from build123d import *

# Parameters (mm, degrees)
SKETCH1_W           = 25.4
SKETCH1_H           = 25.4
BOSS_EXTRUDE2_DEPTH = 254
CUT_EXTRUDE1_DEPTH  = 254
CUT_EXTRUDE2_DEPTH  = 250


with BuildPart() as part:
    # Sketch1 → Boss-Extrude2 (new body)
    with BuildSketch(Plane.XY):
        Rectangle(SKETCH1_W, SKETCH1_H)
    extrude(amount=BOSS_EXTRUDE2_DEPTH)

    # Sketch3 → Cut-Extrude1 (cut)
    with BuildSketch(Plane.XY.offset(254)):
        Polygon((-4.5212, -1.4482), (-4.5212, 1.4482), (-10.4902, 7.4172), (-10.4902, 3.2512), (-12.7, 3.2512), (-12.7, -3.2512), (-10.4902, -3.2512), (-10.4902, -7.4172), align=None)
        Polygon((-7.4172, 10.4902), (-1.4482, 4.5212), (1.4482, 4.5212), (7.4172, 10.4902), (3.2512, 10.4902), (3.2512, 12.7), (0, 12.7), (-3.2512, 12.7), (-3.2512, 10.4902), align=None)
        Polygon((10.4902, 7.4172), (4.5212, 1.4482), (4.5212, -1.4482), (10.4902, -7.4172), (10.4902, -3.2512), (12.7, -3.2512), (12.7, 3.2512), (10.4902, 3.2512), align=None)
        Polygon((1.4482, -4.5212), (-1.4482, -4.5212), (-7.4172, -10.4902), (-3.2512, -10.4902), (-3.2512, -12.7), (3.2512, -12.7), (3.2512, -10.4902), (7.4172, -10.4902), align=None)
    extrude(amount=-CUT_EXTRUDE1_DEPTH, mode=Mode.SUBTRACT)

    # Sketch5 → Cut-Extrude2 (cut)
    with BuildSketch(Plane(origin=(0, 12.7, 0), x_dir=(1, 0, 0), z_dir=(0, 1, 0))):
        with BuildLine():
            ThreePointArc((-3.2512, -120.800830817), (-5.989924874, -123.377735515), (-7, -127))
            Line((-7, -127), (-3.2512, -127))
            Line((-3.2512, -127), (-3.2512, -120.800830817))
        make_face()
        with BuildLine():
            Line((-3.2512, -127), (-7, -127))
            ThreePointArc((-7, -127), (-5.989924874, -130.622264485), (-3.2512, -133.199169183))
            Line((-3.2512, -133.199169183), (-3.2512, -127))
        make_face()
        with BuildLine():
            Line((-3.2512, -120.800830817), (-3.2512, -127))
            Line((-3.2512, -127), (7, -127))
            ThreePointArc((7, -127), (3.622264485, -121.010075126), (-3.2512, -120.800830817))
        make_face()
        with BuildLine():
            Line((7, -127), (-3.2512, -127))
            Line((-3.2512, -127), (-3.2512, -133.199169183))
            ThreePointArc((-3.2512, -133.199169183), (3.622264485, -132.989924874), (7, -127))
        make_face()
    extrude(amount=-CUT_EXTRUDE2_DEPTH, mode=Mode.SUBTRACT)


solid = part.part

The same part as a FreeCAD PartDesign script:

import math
import FreeCAD as App
import Part
import Sketcher
Q = App.Units.Quantity

doc = App.newDocument("Part")
body = doc.addObject("PartDesign::Body", "Body")

# Sketch on XY plane
sketch1 = body.newObject("Sketcher::SketchObject", "Sketch")
sketch1.AttachmentSupport = (doc.getObject("XY_Plane"), [""])
sketch1.MapMode = "FlatFace"
sketch1.addGeometry(Part.LineSegment(App.Vector(-12.7, 12.7, 0), App.Vector(-12.7, -12.7, 0)), False)
sketch1.addGeometry(Part.LineSegment(App.Vector(-12.7, -12.7, 0), App.Vector(12.7, -12.7, 0)), False)
sketch1.addGeometry(Part.LineSegment(App.Vector(12.7, -12.7, 0), App.Vector(12.7, 12.7, 0)), False)
sketch1.addGeometry(Part.LineSegment(App.Vector(12.7, 12.7, 0), App.Vector(-12.7, 12.7, 0)), False)
sketch1.addConstraint(Sketcher.Constraint("Coincident", 0, 2, 1, 1))
sketch1.addConstraint(Sketcher.Constraint("Coincident", 1, 2, 2, 1))
sketch1.addConstraint(Sketcher.Constraint("Coincident", 2, 2, 3, 1))
sketch1.addConstraint(Sketcher.Constraint("Coincident", 3, 2, 0, 1))
sketch1.addConstraint(Sketcher.Constraint("Vertical", 0))
sketch1.addConstraint(Sketcher.Constraint("Horizontal", 1))
sketch1.addConstraint(Sketcher.Constraint("Vertical", 2))
sketch1.addConstraint(Sketcher.Constraint("Horizontal", 3))
sketch1.addConstraint(Sketcher.Constraint("Symmetric", 0, 2, 2, 2, -1, 1))
sketch1.addConstraint(Sketcher.Constraint("Equal", 3, 0))
sketch1.addConstraint(Sketcher.Constraint("DistanceX", 1, 1, 1, 2, Q("1 in")))
pad1 = body.newObject("PartDesign::Pad", "Pad")
pad1.Profile = sketch1
pad1.Length = Q("10 in")

# Sketch on XY plane
sketch2 = body.newObject("Sketcher::SketchObject", "Sketch001")
sketch2.AttachmentSupport = (doc.getObject("XY_Plane"), [""])
sketch2.MapMode = "FlatFace"
sketch2.AttachmentOffset = App.Placement(App.Vector(0, 0, 10 * 25.4), App.Rotation())
sketch2.addGeometry(Part.LineSegment(App.Vector(-4.5212, -1.4482, 0), App.Vector(-4.5212, 1.4482, 0)), False)
sketch2.addGeometry(Part.LineSegment(App.Vector(-4.5212, 1.4482, 0), App.Vector(-10.4902, 7.4172, 0)), False)
sketch2.addGeometry(Part.LineSegment(App.Vector(-10.4902, 7.4172, 0), App.Vector(-10.4902, 3.2512, 0)), False)
sketch2.addGeometry(Part.LineSegment(App.Vector(-10.4902, 3.2512, 0), App.Vector(-12.7, 3.2512, 0)), False)
sketch2.addGeometry(Part.LineSegment(App.Vector(-12.7, 3.2512, 0), App.Vector(-12.7, -3.2512, 0)), False)
sketch2.addGeometry(Part.LineSegment(App.Vector(-12.7, -3.2512, 0), App.Vector(-10.4902, -3.2512, 0)), False)
sketch2.addGeometry(Part.LineSegment(App.Vector(-10.4902, -3.2512, 0), App.Vector(-10.4902, -7.4172, 0)), False)
sketch2.addGeometry(Part.LineSegment(App.Vector(-10.4902, -7.4172, 0), App.Vector(-4.5212, -1.4482, 0)), False)
sketch2.addGeometry(Part.LineSegment(App.Vector(-7.4172, 10.4902, 0), App.Vector(-1.4482, 4.5212, 0)), False)
sketch2.addGeometry(Part.LineSegment(App.Vector(-1.4482, 4.5212, 0), App.Vector(1.4482, 4.5212, 0)), False)
sketch2.addGeometry(Part.LineSegment(App.Vector(1.4482, 4.5212, 0), App.Vector(7.4172, 10.4902, 0)), False)
sketch2.addGeometry(Part.LineSegment(App.Vector(7.4172, 10.4902, 0), App.Vector(3.2512, 10.4902, 0)), False)
sketch2.addGeometry(Part.LineSegment(App.Vector(3.2512, 10.4902, 0), App.Vector(3.2512, 12.7, 0)), False)
sketch2.addGeometry(Part.LineSegment(App.Vector(3.2512, 12.7, 0), App.Vector(-3.2512, 12.7, 0)), False)
sketch2.addGeometry(Part.LineSegment(App.Vector(-3.2512, 12.7, 0), App.Vector(-3.2512, 10.4902, 0)), False)
sketch2.addGeometry(Part.LineSegment(App.Vector(-3.2512, 10.4902, 0), App.Vector(-7.4172, 10.4902, 0)), False)
sketch2.addGeometry(Part.LineSegment(App.Vector(10.4902, 7.4172, 0), App.Vector(4.5212, 1.4482, 0)), False)
sketch2.addGeometry(Part.LineSegment(App.Vector(4.5212, 1.4482, 0), App.Vector(4.5212, -1.4482, 0)), False)
sketch2.addGeometry(Part.LineSegment(App.Vector(4.5212, -1.4482, 0), App.Vector(10.4902, -7.4172, 0)), False)
sketch2.addGeometry(Part.LineSegment(App.Vector(10.4902, -7.4172, 0), App.Vector(10.4902, -3.2512, 0)), False)
sketch2.addGeometry(Part.LineSegment(App.Vector(10.4902, -3.2512, 0), App.Vector(12.7, -3.2512, 0)), False)
sketch2.addGeometry(Part.LineSegment(App.Vector(12.7, -3.2512, 0), App.Vector(12.7, 3.2512, 0)), False)
sketch2.addGeometry(Part.LineSegment(App.Vector(12.7, 3.2512, 0), App.Vector(10.4902, 3.2512, 0)), False)
sketch2.addGeometry(Part.LineSegment(App.Vector(10.4902, 3.2512, 0), App.Vector(10.4902, 7.4172, 0)), False)
sketch2.addGeometry(Part.LineSegment(App.Vector(1.4482, -4.5212, 0), App.Vector(-1.4482, -4.5212, 0)), False)
sketch2.addGeometry(Part.LineSegment(App.Vector(-1.4482, -4.5212, 0), App.Vector(-7.4172, -10.4902, 0)), False)
sketch2.addGeometry(Part.LineSegment(App.Vector(-7.4172, -10.4902, 0), App.Vector(-3.2512, -10.4902, 0)), False)
sketch2.addGeometry(Part.LineSegment(App.Vector(-3.2512, -10.4902, 0), App.Vector(-3.2512, -12.7, 0)), False)
sketch2.addGeometry(Part.LineSegment(App.Vector(-3.2512, -12.7, 0), App.Vector(3.2512, -12.7, 0)), False)
sketch2.addGeometry(Part.LineSegment(App.Vector(3.2512, -12.7, 0), App.Vector(3.2512, -10.4902, 0)), False)
sketch2.addGeometry(Part.LineSegment(App.Vector(3.2512, -10.4902, 0), App.Vector(7.4172, -10.4902, 0)), False)
sketch2.addGeometry(Part.LineSegment(App.Vector(7.4172, -10.4902, 0), App.Vector(1.4482, -4.5212, 0)), False)
sketch2.addConstraint(Sketcher.Constraint("Coincident", 0, 2, 1, 1))
sketch2.addConstraint(Sketcher.Constraint("Coincident", 1, 2, 2, 1))
sketch2.addConstraint(Sketcher.Constraint("Coincident", 2, 2, 3, 1))
sketch2.addConstraint(Sketcher.Constraint("Coincident", 3, 2, 4, 1))
sketch2.addConstraint(Sketcher.Constraint("Coincident", 4, 2, 5, 1))
sketch2.addConstraint(Sketcher.Constraint("Coincident", 5, 2, 6, 1))
sketch2.addConstraint(Sketcher.Constraint("Coincident", 6, 2, 7, 1))
sketch2.addConstraint(Sketcher.Constraint("Coincident", 7, 2, 0, 1))
sketch2.addConstraint(Sketcher.Constraint("Coincident", 8, 2, 9, 1))
sketch2.addConstraint(Sketcher.Constraint("Coincident", 9, 2, 10, 1))
sketch2.addConstraint(Sketcher.Constraint("Coincident", 10, 2, 11, 1))
sketch2.addConstraint(Sketcher.Constraint("Coincident", 11, 2, 12, 1))
sketch2.addConstraint(Sketcher.Constraint("Coincident", 12, 2, 13, 1))
sketch2.addConstraint(Sketcher.Constraint("Coincident", 13, 2, 14, 1))
sketch2.addConstraint(Sketcher.Constraint("Coincident", 14, 2, 15, 1))
sketch2.addConstraint(Sketcher.Constraint("Coincident", 15, 2, 8, 1))
sketch2.addConstraint(Sketcher.Constraint("Coincident", 16, 2, 17, 1))
sketch2.addConstraint(Sketcher.Constraint("Coincident", 17, 2, 18, 1))
sketch2.addConstraint(Sketcher.Constraint("Coincident", 18, 2, 19, 1))
sketch2.addConstraint(Sketcher.Constraint("Coincident", 19, 2, 20, 1))
sketch2.addConstraint(Sketcher.Constraint("Coincident", 20, 2, 21, 1))
sketch2.addConstraint(Sketcher.Constraint("Coincident", 21, 2, 22, 1))
sketch2.addConstraint(Sketcher.Constraint("Coincident", 22, 2, 23, 1))
sketch2.addConstraint(Sketcher.Constraint("Coincident", 23, 2, 16, 1))
sketch2.addConstraint(Sketcher.Constraint("Coincident", 24, 2, 25, 1))
sketch2.addConstraint(Sketcher.Constraint("Coincident", 25, 2, 26, 1))
sketch2.addConstraint(Sketcher.Constraint("Coincident", 26, 2, 27, 1))
sketch2.addConstraint(Sketcher.Constraint("Coincident", 27, 2, 28, 1))
sketch2.addConstraint(Sketcher.Constraint("Coincident", 28, 2, 29, 1))
sketch2.addConstraint(Sketcher.Constraint("Coincident", 29, 2, 30, 1))
sketch2.addConstraint(Sketcher.Constraint("Coincident", 30, 2, 31, 1))
sketch2.addConstraint(Sketcher.Constraint("Coincident", 31, 2, 24, 1))
sketch2.addConstraint(Sketcher.Constraint("Vertical", 0))
sketch2.addConstraint(Sketcher.Constraint("Vertical", 2))
sketch2.addConstraint(Sketcher.Constraint("Horizontal", 3))
sketch2.addConstraint(Sketcher.Constraint("Vertical", 4))
sketch2.addConstraint(Sketcher.Constraint("Horizontal", 5))
sketch2.addConstraint(Sketcher.Constraint("Vertical", 6))
sketch2.addConstraint(Sketcher.Constraint("Horizontal", 9))
sketch2.addConstraint(Sketcher.Constraint("Horizontal", 11))
sketch2.addConstraint(Sketcher.Constraint("Vertical", 12))
sketch2.addConstraint(Sketcher.Constraint("Horizontal", 13))
sketch2.addConstraint(Sketcher.Constraint("Vertical", 14))
sketch2.addConstraint(Sketcher.Constraint("Horizontal", 15))
sketch2.addConstraint(Sketcher.Constraint("Vertical", 17))
sketch2.addConstraint(Sketcher.Constraint("Vertical", 19))
sketch2.addConstraint(Sketcher.Constraint("Horizontal", 20))
sketch2.addConstraint(Sketcher.Constraint("Vertical", 21))
sketch2.addConstraint(Sketcher.Constraint("Horizontal", 22))
sketch2.addConstraint(Sketcher.Constraint("Vertical", 23))
sketch2.addConstraint(Sketcher.Constraint("Horizontal", 24))
sketch2.addConstraint(Sketcher.Constraint("Horizontal", 26))
sketch2.addConstraint(Sketcher.Constraint("Vertical", 27))
sketch2.addConstraint(Sketcher.Constraint("Horizontal", 28))
sketch2.addConstraint(Sketcher.Constraint("Vertical", 29))
sketch2.addConstraint(Sketcher.Constraint("Horizontal", 30))
sketch2.addConstraint(Sketcher.Constraint("Symmetric", 7, 2, 16, 2, -1, 1))
sketch2.addConstraint(Sketcher.Constraint("Symmetric", 1, 2, 18, 2, -1, 1))
sketch2.addConstraint(Sketcher.Constraint("Symmetric", 3, 2, 20, 2, -1, 1))
sketch2.addConstraint(Sketcher.Constraint("Symmetric", 5, 2, 22, 2, -1, 1))
sketch2.addConstraint(Sketcher.Constraint("Symmetric", 9, 2, 24, 2, -1, 1))
sketch2.addConstraint(Sketcher.Constraint("Symmetric", 10, 2, 25, 2, -1, 1))
sketch2.addConstraint(Sketcher.Constraint("Symmetric", 12, 2, 27, 2, -1, 1))
sketch2.addConstraint(Sketcher.Constraint("Symmetric", 14, 2, 29, 2, -1, 1))
sketch2.addConstraint(Sketcher.Constraint("Symmetric", 11, 2, 14, 2, -2))
sketch2.addConstraint(Sketcher.Constraint("Symmetric", 6, 2, 18, 2, -2))
sketch2.addConstraint(Sketcher.Constraint("Perpendicular", 1, 7))
sketch2.addConstraint(Sketcher.Constraint("Perpendicular", 7, 8))
sketch2.addConstraint(Sketcher.Constraint("Perpendicular", 8, 10))
sketch2.addConstraint(Sketcher.Constraint("Parallel", 10, 16))
sketch2.addConstraint(Sketcher.Constraint("Perpendicular", 16, 18))
sketch2.addConstraint(Sketcher.Constraint("Perpendicular", 25, 31))
sketch2.addConstraint(Sketcher.Constraint("Horizontal", 0, 2, 16, 2))
sketch2.addConstraint(Sketcher.Constraint("Horizontal", 5, 2, 19, 2))
sketch2.addConstraint(Sketcher.Constraint("Vertical", 8, 2, 24, 2))
sketch2.addConstraint(Sketcher.Constraint("Vertical", 10, 2, 30, 2))
sketch2.addConstraint(Sketcher.Constraint("Equal", 24, 0))
sketch2.addConstraint(Sketcher.Constraint("Equal", 30, 2))
sketch2.addConstraint(Sketcher.Constraint("Equal", 28, 4))
sketch2.addConstraint(Sketcher.Constraint("Equal", 22, 12))
sketch2.addConstraint(Sketcher.Constraint("DistanceX", 3, 2, -1, 1, Q("0.5 in")))
sketch2.addConstraint(Sketcher.Constraint("DistanceY", -1, 1, 12, 2, Q("0.5 in")))
sketch2.addConstraint(Sketcher.Constraint("DistanceX", 3, 2, 3, 1, Q("0.087 in")))
sketch2.addConstraint(Sketcher.Constraint("DistanceX", 13, 2, 13, 1, Q("0.256 in")))
sketch2.addConstraint(Sketcher.Constraint("DistanceY", 2, 2, 8, 2, Q("0.05 in")))
sketch2.addConstraint(Sketcher.Constraint("DistanceX", 9, 1, 9, 2, Q("2.8964 mm")))
pocket1 = body.newObject("PartDesign::Pocket", "Pocket")
pocket1.Profile = sketch2
pocket1.Length = Q("10 in")

# Sketch on XZ plane
sketch3 = body.newObject("Sketcher::SketchObject", "Sketch002")
sketch3.AttachmentSupport = (doc.getObject("XZ_Plane"), [""])
sketch3.MapMode = "FlatFace"
sketch3.AttachmentOffset = App.Placement(App.Vector(0, 0, -0.5 * 25.4), App.Rotation())
sketch3.addGeometry(Part.ArcOfCircle(Part.Circle(App.Vector(0, 127, 0), App.Vector(0, 0, 1), 7), math.radians(117.675095), math.radians(180)), False)
sketch3.addGeometry(Part.ArcOfCircle(Part.Circle(App.Vector(0, 127, 0), App.Vector(0, 0, 1), 7), math.radians(0), math.radians(117.675095)), False)
sketch3.addGeometry(Part.ArcOfCircle(Part.Circle(App.Vector(0, 127, 0), App.Vector(0, 0, 1), 7), math.radians(-117.675095), math.radians(0)), False)
sketch3.addGeometry(Part.ArcOfCircle(Part.Circle(App.Vector(0, 127, 0), App.Vector(0, 0, 1), 7), math.radians(-180), math.radians(-117.675095)), False)
sketch3.addConstraint(Sketcher.Constraint("Tangent", 0, 1, 1, 2))
sketch3.addConstraint(Sketcher.Constraint("Tangent", 1, 1, 2, 2))
sketch3.addConstraint(Sketcher.Constraint("Tangent", 2, 1, 3, 2))
sketch3.addConstraint(Sketcher.Constraint("Tangent", 3, 1, 0, 2))
sketch3.addConstraint(Sketcher.Constraint("Equal", 0, 1))
sketch3.addConstraint(Sketcher.Constraint("Symmetric", 1, 1, 3, 1, -2))
sketch3.addConstraint(Sketcher.Constraint("Horizontal", 3, 3, 1, 1))
sketch3.addConstraint(Sketcher.Constraint("Vertical", 0, 1, 2, 1))
sketch3.addConstraint(Sketcher.Constraint("DistanceY", -1, 1, 0, 3, Q("5 in")))
sketch3.addConstraint(Sketcher.Constraint("Radius", 0, Q("7 mm")))
sketch3.addConstraint(Sketcher.Constraint("DistanceX", 0, 1, -1, 1, Q("0.128 in")))
pocket2 = body.newObject("PartDesign::Pocket", "Pocket001")
pocket2.Profile = sketch3
pocket2.Length = 250
pocket2.Reversed = True

doc.recompute()
